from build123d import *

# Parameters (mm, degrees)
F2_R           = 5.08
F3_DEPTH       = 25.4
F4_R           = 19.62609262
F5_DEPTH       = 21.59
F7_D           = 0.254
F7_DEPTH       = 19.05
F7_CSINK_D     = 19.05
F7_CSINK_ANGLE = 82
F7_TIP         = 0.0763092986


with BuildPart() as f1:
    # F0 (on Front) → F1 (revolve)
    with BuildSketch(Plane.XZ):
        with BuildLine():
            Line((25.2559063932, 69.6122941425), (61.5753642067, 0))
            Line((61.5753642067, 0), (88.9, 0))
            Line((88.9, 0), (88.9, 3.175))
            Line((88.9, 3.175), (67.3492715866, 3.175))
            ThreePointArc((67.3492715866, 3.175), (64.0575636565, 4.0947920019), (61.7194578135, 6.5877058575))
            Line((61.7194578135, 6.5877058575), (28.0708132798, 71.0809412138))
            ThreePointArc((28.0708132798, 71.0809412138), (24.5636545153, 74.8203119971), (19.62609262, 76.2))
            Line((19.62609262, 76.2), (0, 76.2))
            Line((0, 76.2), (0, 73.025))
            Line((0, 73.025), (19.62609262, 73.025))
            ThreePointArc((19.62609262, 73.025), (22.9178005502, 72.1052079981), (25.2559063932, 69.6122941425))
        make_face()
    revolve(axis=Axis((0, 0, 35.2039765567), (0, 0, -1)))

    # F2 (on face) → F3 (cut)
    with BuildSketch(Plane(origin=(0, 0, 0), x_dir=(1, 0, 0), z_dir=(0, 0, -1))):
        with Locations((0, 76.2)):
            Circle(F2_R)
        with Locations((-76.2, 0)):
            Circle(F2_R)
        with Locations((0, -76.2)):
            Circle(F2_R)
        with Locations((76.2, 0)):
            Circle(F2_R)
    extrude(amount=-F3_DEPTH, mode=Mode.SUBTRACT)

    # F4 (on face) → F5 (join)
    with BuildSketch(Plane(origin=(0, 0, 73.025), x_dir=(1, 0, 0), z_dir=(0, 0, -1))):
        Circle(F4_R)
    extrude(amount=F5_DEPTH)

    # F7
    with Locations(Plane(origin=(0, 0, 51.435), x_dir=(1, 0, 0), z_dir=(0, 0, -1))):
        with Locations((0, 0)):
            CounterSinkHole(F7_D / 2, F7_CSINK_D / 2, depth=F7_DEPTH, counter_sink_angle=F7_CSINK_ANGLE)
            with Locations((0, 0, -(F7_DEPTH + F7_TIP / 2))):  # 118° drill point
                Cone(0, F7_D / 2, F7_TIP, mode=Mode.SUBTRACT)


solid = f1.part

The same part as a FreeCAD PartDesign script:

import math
import FreeCAD as App
import Part
import Sketcher

V = App.Vector
Q = App.Units.Quantity

doc = App.newDocument("Part")
params = doc.addObject("Spreadsheet::Sheet", "Params")
for row, (alias, value) in enumerate([
    ("sketch1_radius", "0.25 in"),
    ("sketch1_radius2", "0.375 in"),
    ("revolution_angle", "360 deg"),
    ("sketch2_diameter", "0.4 in"),
    ("pocket1_length", "1 in"),
    ("pad1_length", "0.85 in"),
    ("sketch4_diameter", "0.01 in"),
    ("hole_diameter", "0.01 in"),
    ("hole_depth", "0.75 in"),
    ("hole_csink_diameter", "0.75 in"),
], start=1):
    params.set(f"A{row}", alias)
    params.set(f"B{row}", "=" + value)
    params.setAlias(f"B{row}", alias)

body = doc.addObject("PartDesign::Body", "Body")

# Sketch on XZ plane
sketch1 = body.newObject("Sketcher::SketchObject", "Sketch")
sketch1.AttachmentSupport = (doc.getObject("XZ_Plane"), [""])
sketch1.MapMode = "FlatFace"
sketch1.addGeometry(Part.LineSegment(V(25.255906, 69.612294, 0), V(61.575364, 0, 0)), False)
sketch1.addGeometry(Part.LineSegment(V(61.575364, 0, 0), V(88.9, 0, 0)), False)
sketch1.addGeometry(Part.LineSegment(V(88.9, 0, 0), V(88.9, 3.175, 0)), False)
sketch1.addGeometry(Part.LineSegment(V(88.9, 3.175, 0), V(67.349272, 3.175, 0)), False)
sketch1.addGeometry(Part.ArcOfCircle(Part.Circle(V(67.349272, 9.525, 0), V(0, 0, 1), 6.35), math.radians(-152.447188), math.radians(-90)), False)
sketch1.addGeometry(Part.LineSegment(V(61.719458, 6.587706, 0), V(28.070813, 71.080941, 0)), False)
sketch1.addGeometry(Part.ArcOfCircle(Part.Circle(V(19.626093, 66.675, 0), V(0, 0, 1), 9.525), math.radians(27.552812), math.radians(90)), False)
sketch1.addGeometry(Part.LineSegment(V(19.626093, 76.2, 0), V(0, 76.2, 0)), False)
sketch1.addGeometry(Part.LineSegment(V(0, 76.2, 0), V(0, 73.025, 0)), False)
sketch1.addGeometry(Part.LineSegment(V(0, 73.025, 0), V(19.626093, 73.025, 0)), False)
sketch1.addGeometry(Part.ArcOfCircle(Part.Circle(V(19.626093, 66.675, 0), V(0, 0, 1), 6.35), math.radians(27.552812), math.radians(90)), False)
sketch1.addConstraint(Sketcher.Constraint("Coincident", 0, 2, 1, 1))
sketch1.addConstraint(Sketcher.Constraint("Coincident", 1, 2, 2, 1))
sketch1.addConstraint(Sketcher.Constraint("Coincident", 2, 2, 3, 1))
sketch1.addConstraint(Sketcher.Constraint("Tangent", 3, 2, 4, 2))
sketch1.addConstraint(Sketcher.Constraint("Tangent", 4, 1, 5, 1))
sketch1.addConstraint(Sketcher.Constraint("Tangent", 5, 2, 6, 1))
sketch1.addConstraint(Sketcher.Constraint("Tangent", 6, 2, 7, 1))
sketch1.addConstraint(Sketcher.Constraint("Coincident", 7, 2, 8, 1))
sketch1.addConstraint(Sketcher.Constraint("Coincident", 8, 2, 9, 1))
sketch1.addConstraint(Sketcher.Constraint("Tangent", 9, 2, 10, 2))
sketch1.addConstraint(Sketcher.Constraint("Tangent", 10, 1, 0, 1))
sketch1.addConstraint(Sketcher.Constraint("Horizontal", 1))
sketch1.addConstraint(Sketcher.Constraint("Vertical", 2))
sketch1.addConstraint(Sketcher.Constraint("Horizontal", 3))
sketch1.addConstraint(Sketcher.Constraint("Horizontal", 7))
sketch1.addConstraint(Sketcher.Constraint("Vertical", 8))
sketch1.addConstraint(Sketcher.Constraint("Horizontal", 9))
sketch1.addConstraint(Sketcher.Constraint("Coincident", 10, 3, 6, 3))
sketch1.addConstraint(Sketcher.Constraint("Equal", 4, 10))
sketch1.addConstraint(Sketcher.Constraint("PointOnObject", 0, 2, -1))
sketch1.addConstraint(Sketcher.Constraint("PointOnObject", 7, 2, -2))
sketch1.addConstraint(Sketcher.Constraint("Parallel", 0, 5))
sketch1.addConstraint(Sketcher.Constraint("Equal", 2, 8))
sketch1.addConstraint(Sketcher.Constraint("Radius", 4, Q("0.25 in")))
sketch1.addConstraint(Sketcher.Constraint("DistanceY", -1, 1, 6, 2, Q("3 in")))
sketch1.addConstraint(Sketcher.Constraint("Radius", 6, Q("0.375 in")))
sketch1.addConstraint(Sketcher.Constraint("DistanceX", -1, 1, 1, 2, Q("3.5 in")))
sketch1.addConstraint(Sketcher.Constraint("DistanceX", -1, 1, 4, 1, Q("2.4298999 in")))
sketch1.addConstraint(Sketcher.Constraint("DistanceX", 3, 2, 3, 1, Q("21.550728 mm")))
sketch1.setExpression("Constraints[23]", "Params.sketch1_radius")
sketch1.setExpression("Constraints[25]", "Params.sketch1_radius2")
revolution = body.newObject("PartDesign::Revolution", "Revolution")
revolution.Profile = sketch1
revolution.ReferenceAxis = (sketch1, ["V_Axis"])
revolution.setExpression("Angle", "Params.revolution_angle")

# Sketch on XY plane
sketch2 = body.newObject("Sketcher::SketchObject", "Sketch001")
sketch2.AttachmentSupport = (doc.getObject("XY_Plane"), [""])
sketch2.MapMode = "FlatFace"
sketch2.addGeometry(Part.Circle(V(0, -76, 0), V(0, 0, 1), 5), False)
sketch2.addGeometry(Part.Circle(V(-76, 0, 0), V(0, 0, 1), 5), False)
sketch2.addGeometry(Part.Circle(V(0, 76, 0), V(0, 0, 1), 5), False)
sketch2.addGeometry(Part.Circle(V(76, 0, 0), V(0, 0, 1), 5), False)
sketch2.addConstraint(Sketcher.Constraint("Equal", 0, 1))
sketch2.addConstraint(Sketcher.Constraint("Equal", 1, 2))
sketch2.addConstraint(Sketcher.Constraint("Equal", 2, 3))
sketch2.addConstraint(Sketcher.Constraint("Symmetric", 0, 3, 2, 3, -1, 1))
sketch2.addConstraint(Sketcher.Constraint("Symmetric", 1, 3, 3, 3, -1, 1))
sketch2.addConstraint(Sketcher.Constraint("PointOnObject", 0, 3, -2))
sketch2.addConstraint(Sketcher.Constraint("PointOnObject", 1, 3, -1))
sketch2.addConstraint(Sketcher.Constraint("Diameter", 0, Q("0.4 in")))
sketch2.addConstraint(Sketcher.Constraint("DistanceY", 0, 3, -1, 1, Q("3 in")))
sketch2.addConstraint(Sketcher.Constraint("DistanceX", 1, 3, -1, 1, Q("3 in")))
sketch2.setExpression("Constraints[7]", "Params.sketch2_diameter")
pocket1 = body.newObject("PartDesign::Pocket", "Pocket")
pocket1.Profile = sketch2
pocket1.setExpression("Length", "Params.pocket1_length")
pocket1.Reversed = True

# Sketch on XY plane
sketch3 = body.newObject("Sketcher::SketchObject", "Sketch002")
sketch3.AttachmentSupport = (doc.getObject("XY_Plane"), [""])
sketch3.MapMode = "FlatFace"
sketch3.AttachmentOffset = App.Placement(V(0, 0, 2.875 * 25.4), App.Rotation())
sketch3.addGeometry(Part.Circle(V(0, 0, 0), V(0, 0, 1), 20), False)
sketch3.addConstraint(Sketcher.Constraint("Coincident", 0, 3, -1, 1))
sketch3.addConstraint(Sketcher.Constraint("Diameter", 0, Q("39.252185 mm")))
pad1 = body.newObject("PartDesign::Pad", "Pad")
pad1.Profile = sketch3
pad1.setExpression("Length", "Params.pad1_length")
pad1.Reversed = True

# Sketch on XY plane
sketch4 = body.newObject("Sketcher::SketchObject", "Sketch003")
sketch4.AttachmentSupport = (doc.getObject("XY_Plane"), [""])
sketch4.MapMode = "FlatFace"
sketch4.AttachmentOffset = App.Placement(V(0, 0, 2.025 * 25.4), App.Rotation())
sketch4.addGeometry(Part.Circle(V(0, 0, 0), V(0, 0, 1), 0.13), False)
sketch4.addConstraint(Sketcher.Constraint("Coincident", 0, 3, -1, 1))
sketch4.addConstraint(Sketcher.Constraint("Diameter", 0, Q("0.01 in")))
sketch4.setExpression("Constraints[1]", "Params.sketch4_diameter")
doc.recompute()
hole = body.newObject("PartDesign::Hole", "Hole")
hole.Profile = sketch4
hole.ThreadType = "None"
hole.setExpression("Diameter", "Params.hole_diameter")
hole.DepthType = "Dimension"
hole.setExpression("Depth", "Params.hole_depth")
hole.DrillPoint = "Angled"
hole.DrillPointAngle = 118
hole.HoleCutType = "Countersink"
hole.setExpression("HoleCutDiameter", "Params.hole_csink_diameter")
hole.HoleCutCountersinkAngle = 82
hole.Reversed = True

doc.recompute()
